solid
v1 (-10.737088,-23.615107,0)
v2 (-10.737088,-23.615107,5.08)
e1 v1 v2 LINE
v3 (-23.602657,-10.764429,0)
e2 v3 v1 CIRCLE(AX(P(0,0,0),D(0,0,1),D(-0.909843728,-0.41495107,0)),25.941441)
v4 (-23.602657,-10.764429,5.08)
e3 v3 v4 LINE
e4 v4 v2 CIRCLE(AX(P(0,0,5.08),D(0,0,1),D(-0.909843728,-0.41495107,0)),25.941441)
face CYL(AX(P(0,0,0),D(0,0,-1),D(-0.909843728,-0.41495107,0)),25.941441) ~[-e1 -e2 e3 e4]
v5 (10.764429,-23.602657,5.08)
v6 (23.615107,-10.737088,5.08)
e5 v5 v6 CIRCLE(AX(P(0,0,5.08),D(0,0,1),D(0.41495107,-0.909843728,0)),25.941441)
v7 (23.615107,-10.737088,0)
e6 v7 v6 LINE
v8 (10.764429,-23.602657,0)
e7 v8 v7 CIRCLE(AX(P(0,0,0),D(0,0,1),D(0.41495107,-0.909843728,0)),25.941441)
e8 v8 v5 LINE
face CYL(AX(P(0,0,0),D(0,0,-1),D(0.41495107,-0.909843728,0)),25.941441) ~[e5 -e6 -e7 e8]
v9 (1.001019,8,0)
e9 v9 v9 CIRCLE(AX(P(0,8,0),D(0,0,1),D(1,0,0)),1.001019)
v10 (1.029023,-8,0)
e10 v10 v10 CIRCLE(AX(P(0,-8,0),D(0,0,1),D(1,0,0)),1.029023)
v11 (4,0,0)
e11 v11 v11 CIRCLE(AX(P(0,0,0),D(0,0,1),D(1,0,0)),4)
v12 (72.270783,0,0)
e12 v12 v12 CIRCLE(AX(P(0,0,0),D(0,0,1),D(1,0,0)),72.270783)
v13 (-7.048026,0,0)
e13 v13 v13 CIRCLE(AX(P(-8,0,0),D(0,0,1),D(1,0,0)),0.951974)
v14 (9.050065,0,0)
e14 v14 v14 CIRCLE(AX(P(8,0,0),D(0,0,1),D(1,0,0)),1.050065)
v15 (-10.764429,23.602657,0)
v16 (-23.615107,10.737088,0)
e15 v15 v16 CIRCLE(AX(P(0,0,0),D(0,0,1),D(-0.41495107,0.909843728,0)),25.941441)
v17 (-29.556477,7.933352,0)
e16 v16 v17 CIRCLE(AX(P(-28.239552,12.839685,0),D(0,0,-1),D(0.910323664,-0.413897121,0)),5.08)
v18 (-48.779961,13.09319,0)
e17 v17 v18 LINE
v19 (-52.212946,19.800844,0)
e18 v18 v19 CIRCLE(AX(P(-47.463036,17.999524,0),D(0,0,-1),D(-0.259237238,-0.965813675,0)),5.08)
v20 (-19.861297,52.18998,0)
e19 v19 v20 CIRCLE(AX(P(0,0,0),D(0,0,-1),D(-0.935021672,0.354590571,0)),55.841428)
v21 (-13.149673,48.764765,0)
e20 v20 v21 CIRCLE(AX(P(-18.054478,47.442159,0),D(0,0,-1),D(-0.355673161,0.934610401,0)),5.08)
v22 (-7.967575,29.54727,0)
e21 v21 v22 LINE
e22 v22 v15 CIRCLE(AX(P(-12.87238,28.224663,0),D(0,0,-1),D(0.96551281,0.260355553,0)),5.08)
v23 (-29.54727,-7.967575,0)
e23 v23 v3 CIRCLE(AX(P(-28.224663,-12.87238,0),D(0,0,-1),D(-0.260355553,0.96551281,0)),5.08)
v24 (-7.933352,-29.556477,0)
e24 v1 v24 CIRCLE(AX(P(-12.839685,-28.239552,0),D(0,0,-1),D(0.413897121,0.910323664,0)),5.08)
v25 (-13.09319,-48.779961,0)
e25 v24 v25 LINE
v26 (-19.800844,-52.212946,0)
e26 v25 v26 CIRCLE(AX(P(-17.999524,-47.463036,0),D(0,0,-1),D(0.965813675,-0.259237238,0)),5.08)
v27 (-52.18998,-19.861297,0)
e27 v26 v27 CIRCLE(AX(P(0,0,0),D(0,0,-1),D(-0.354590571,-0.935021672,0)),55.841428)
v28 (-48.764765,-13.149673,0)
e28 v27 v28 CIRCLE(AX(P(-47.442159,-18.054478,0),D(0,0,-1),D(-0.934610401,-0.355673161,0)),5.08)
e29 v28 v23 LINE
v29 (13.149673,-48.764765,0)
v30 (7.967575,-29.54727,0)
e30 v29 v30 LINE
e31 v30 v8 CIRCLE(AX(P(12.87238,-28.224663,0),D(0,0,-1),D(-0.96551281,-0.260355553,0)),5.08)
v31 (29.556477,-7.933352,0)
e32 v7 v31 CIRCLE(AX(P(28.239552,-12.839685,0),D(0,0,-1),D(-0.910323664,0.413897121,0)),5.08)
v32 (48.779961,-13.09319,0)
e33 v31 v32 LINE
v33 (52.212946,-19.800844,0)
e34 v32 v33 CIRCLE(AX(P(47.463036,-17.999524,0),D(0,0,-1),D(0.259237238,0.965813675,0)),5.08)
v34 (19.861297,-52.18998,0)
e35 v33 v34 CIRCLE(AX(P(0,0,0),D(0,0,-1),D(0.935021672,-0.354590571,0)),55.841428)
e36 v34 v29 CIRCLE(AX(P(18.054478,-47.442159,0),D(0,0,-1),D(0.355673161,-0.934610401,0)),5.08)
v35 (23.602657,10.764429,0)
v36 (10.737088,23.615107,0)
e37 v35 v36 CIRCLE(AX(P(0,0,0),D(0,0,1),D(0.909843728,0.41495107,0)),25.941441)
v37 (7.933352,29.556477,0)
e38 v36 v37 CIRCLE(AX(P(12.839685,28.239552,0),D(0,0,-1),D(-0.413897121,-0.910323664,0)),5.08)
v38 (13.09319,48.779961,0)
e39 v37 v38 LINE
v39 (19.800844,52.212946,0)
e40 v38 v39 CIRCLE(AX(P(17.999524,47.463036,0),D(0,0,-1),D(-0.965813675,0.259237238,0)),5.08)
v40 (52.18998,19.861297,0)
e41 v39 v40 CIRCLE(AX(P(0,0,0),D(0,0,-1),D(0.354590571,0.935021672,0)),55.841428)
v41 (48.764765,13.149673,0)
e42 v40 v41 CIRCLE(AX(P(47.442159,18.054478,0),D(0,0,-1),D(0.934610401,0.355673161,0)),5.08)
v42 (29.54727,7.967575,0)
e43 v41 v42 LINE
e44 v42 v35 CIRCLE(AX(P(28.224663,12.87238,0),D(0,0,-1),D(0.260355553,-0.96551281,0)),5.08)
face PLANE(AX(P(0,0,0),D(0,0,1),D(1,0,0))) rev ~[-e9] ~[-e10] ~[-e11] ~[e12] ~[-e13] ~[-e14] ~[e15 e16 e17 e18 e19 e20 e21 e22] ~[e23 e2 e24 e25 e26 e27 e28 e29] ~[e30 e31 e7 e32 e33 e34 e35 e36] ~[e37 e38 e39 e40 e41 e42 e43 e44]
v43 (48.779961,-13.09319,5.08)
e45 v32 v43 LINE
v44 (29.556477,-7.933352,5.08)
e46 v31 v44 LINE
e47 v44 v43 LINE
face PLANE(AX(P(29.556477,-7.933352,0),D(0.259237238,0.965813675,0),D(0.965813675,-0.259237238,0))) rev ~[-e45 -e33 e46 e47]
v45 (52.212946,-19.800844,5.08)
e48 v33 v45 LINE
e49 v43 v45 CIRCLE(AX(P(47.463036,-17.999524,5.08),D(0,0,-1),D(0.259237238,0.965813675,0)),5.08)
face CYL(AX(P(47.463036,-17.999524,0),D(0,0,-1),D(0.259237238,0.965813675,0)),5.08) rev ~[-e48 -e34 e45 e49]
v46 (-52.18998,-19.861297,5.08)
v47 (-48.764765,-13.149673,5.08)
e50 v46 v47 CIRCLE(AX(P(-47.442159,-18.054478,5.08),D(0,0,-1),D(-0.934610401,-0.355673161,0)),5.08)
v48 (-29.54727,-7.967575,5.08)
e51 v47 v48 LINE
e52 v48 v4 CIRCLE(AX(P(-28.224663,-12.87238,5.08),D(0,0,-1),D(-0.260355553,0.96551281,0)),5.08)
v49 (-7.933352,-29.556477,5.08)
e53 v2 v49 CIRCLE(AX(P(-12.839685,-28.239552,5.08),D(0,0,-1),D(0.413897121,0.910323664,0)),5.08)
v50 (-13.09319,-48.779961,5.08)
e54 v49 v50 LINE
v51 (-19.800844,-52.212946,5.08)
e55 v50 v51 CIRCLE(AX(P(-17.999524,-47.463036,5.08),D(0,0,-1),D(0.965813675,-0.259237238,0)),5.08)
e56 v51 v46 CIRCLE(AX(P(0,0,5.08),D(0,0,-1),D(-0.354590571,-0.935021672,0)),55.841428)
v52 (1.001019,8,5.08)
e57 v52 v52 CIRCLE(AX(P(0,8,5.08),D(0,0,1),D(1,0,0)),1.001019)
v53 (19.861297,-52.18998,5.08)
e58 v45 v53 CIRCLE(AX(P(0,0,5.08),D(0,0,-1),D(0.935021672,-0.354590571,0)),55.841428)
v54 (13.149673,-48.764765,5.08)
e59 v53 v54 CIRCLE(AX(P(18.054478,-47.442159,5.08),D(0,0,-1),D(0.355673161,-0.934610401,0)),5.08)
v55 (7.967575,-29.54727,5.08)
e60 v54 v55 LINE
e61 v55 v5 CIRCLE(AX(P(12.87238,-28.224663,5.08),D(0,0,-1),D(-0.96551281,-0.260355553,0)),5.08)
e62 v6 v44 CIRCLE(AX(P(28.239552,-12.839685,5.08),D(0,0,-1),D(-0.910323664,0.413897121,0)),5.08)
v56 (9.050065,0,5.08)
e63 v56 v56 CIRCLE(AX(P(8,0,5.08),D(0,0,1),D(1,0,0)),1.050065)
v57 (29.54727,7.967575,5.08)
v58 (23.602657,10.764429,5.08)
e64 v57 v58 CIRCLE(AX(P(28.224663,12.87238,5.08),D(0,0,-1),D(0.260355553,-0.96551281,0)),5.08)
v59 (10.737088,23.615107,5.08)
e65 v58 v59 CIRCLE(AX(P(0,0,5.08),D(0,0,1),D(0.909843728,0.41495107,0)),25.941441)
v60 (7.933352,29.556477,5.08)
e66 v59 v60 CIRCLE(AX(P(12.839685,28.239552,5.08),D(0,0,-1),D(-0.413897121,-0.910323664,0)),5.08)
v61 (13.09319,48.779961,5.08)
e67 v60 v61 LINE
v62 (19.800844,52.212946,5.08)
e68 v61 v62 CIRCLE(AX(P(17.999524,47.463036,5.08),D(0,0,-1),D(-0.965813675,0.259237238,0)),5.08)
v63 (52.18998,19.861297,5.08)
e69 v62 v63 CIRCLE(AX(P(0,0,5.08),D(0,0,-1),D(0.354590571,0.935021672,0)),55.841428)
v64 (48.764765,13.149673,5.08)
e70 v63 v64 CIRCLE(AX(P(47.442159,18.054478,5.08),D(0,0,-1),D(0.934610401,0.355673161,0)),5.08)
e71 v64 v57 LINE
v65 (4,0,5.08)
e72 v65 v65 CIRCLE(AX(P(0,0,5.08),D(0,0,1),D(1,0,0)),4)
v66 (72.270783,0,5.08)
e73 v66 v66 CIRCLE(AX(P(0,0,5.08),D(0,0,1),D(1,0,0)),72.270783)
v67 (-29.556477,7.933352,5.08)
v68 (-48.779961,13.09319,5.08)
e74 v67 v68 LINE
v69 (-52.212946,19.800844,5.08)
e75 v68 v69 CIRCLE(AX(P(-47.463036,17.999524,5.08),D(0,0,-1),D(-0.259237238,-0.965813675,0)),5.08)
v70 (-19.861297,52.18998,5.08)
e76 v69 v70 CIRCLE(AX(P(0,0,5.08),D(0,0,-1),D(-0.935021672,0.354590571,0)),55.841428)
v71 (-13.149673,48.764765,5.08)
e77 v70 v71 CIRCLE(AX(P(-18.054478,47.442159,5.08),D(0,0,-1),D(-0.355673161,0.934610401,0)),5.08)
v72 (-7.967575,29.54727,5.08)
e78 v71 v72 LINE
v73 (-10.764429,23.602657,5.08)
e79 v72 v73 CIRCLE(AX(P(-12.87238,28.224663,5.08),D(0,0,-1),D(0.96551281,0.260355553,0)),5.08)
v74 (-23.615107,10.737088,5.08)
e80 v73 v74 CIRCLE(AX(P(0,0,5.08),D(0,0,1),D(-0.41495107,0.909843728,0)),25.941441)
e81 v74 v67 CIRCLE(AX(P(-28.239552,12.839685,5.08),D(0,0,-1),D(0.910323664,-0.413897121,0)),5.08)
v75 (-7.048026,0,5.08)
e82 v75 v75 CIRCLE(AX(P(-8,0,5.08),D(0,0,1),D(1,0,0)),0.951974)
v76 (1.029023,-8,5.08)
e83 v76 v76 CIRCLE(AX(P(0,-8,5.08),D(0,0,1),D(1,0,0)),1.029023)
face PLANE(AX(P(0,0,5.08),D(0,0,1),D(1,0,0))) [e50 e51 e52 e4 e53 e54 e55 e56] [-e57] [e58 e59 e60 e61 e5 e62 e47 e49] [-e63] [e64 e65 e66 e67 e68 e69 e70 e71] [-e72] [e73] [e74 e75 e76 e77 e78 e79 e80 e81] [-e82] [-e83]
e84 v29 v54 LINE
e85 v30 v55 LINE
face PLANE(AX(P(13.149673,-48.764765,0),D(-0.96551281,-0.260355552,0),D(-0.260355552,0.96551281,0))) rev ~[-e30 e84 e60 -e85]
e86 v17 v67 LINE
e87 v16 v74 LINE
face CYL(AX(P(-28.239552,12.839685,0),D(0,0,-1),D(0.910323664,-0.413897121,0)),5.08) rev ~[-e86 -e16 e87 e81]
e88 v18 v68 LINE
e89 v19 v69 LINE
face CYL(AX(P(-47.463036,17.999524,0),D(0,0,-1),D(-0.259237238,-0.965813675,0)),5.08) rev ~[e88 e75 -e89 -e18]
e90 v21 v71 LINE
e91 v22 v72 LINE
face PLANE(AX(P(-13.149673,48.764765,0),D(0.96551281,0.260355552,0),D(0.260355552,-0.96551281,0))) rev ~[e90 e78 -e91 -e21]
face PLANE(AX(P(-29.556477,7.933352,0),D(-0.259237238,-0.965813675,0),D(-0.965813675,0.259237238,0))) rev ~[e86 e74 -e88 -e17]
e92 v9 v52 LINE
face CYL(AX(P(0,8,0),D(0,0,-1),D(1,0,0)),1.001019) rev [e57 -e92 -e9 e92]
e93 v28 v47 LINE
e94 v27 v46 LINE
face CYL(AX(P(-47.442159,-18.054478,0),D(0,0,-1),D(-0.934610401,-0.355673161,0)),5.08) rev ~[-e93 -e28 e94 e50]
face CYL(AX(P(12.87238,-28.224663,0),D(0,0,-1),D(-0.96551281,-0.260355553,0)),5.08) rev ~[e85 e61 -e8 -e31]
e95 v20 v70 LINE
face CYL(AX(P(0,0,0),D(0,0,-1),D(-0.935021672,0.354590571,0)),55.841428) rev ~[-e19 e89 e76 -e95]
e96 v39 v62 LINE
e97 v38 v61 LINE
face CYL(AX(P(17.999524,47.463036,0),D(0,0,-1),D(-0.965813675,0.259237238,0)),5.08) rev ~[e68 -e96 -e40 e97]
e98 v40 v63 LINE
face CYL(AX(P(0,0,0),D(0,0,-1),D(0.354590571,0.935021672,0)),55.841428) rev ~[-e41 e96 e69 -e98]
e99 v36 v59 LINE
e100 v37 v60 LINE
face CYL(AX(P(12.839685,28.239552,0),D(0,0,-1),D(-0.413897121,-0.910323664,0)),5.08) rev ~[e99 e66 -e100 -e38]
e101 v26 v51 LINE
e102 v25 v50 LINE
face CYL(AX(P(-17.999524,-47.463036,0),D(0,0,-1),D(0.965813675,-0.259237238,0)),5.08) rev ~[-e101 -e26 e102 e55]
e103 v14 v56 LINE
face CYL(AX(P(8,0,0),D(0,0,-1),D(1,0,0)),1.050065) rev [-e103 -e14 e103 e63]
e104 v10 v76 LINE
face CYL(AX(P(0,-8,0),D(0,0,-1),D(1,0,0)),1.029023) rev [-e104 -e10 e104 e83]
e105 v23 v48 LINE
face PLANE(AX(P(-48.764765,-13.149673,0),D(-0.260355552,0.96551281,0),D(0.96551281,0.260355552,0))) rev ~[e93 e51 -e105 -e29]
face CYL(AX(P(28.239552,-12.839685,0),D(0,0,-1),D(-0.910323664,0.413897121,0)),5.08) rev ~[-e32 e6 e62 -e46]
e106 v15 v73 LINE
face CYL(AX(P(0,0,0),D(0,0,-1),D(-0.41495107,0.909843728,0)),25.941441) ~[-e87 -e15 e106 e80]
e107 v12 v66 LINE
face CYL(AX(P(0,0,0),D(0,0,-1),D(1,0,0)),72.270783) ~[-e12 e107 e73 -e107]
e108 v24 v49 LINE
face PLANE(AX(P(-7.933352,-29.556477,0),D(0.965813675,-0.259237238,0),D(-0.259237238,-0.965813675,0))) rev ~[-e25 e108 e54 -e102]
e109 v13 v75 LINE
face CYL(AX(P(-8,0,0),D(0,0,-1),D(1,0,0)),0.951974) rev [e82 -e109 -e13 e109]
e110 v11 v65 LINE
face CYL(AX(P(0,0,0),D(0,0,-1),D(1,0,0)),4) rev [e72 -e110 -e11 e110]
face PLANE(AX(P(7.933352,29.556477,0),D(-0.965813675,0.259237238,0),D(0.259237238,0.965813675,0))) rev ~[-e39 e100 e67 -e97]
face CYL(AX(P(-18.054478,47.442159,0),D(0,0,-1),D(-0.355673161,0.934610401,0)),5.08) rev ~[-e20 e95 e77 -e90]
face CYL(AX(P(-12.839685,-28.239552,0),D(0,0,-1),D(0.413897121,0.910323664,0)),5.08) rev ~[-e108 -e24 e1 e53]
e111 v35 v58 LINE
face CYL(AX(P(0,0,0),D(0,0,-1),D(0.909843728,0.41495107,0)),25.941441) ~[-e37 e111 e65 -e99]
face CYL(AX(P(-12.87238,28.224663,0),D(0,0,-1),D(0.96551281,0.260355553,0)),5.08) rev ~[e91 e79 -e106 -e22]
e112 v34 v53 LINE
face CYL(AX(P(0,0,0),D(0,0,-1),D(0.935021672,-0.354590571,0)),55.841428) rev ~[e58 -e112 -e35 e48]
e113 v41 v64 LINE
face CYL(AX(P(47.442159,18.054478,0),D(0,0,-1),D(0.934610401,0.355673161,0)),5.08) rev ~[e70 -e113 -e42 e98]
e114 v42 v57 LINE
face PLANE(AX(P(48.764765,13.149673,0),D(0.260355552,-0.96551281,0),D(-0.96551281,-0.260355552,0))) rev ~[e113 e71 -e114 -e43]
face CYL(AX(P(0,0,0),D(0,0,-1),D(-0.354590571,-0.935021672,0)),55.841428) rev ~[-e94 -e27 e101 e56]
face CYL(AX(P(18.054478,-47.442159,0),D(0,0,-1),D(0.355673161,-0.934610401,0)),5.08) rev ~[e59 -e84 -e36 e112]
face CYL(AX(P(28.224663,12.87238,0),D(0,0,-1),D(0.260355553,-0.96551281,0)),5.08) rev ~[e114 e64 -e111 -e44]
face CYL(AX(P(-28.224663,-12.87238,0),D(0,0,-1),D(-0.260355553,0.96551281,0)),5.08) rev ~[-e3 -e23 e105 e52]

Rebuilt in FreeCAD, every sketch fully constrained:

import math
import FreeCAD as App
import Part
import Sketcher
Q = App.Units.Quantity

doc = App.newDocument("Part")
body = doc.addObject("PartDesign::Body", "Body")

# Sketch on XY plane
sketch1 = body.newObject("Sketcher::SketchObject", "Sketch")
sketch1.AttachmentSupport = (doc.getObject("XY_Plane"), [""])
sketch1.MapMode = "FlatFace"
sketch1.addGeometry([
    Part.Circle(App.Vector(0, 0, 0), App.Vector(0, 0, 1), 72.3),  # 0
    Part.ArcOfCircle(Part.Circle(App.Vector(-12.8, -28.2, 0), App.Vector(0, 0, 1), 5.1), math.radians(-15), math.radians(66)),  # 1
    Part.LineSegment(App.Vector(-7.9, -29.6, 0), App.Vector(-13.1, -48.8, 0)),  # 2
    Part.ArcOfCircle(Part.Circle(App.Vector(-18, -47.5, 0), App.Vector(0, 0, 1), 5.1), math.radians(-111), math.radians(-15)),  # 3
    Part.ArcOfCircle(Part.Circle(App.Vector(0, 0, 0), App.Vector(0, 0, 1), 55.8), math.radians(-159), math.radians(-111)),  # 4
    Part.ArcOfCircle(Part.Circle(App.Vector(-47.4, -18.1, 0), App.Vector(0, 0, 1), 5.1), math.radians(105), math.radians(201)),  # 5
    Part.LineSegment(App.Vector(-48.8, -13.1, 0), App.Vector(-29.5, -8, 0)),  # 6
    Part.ArcOfCircle(Part.Circle(App.Vector(-28.2, -12.9, 0), App.Vector(0, 0, 1), 5.1), math.radians(25), math.radians(105)),  # 7
    Part.ArcOfCircle(Part.Circle(App.Vector(0, 0, 0), App.Vector(0, 0, 1), 25.9), math.radians(-155), math.radians(-114)),  # 8
    Part.ArcOfCircle(Part.Circle(App.Vector(28.2, -12.8, 0), App.Vector(0, 0, 1), 5.1), math.radians(75), math.radians(156)),  # 9
    Part.LineSegment(App.Vector(29.6, -7.9, 0), App.Vector(48.8, -13.1, 0)),  # 10
    Part.ArcOfCircle(Part.Circle(App.Vector(47.5, -18, 0), App.Vector(0, 0, 1), 5.1), math.radians(-21), math.radians(75)),  # 11
    Part.ArcOfCircle(Part.Circle(App.Vector(0, 0, 0), App.Vector(0, 0, 1), 55.8), math.radians(-69), math.radians(-21)),  # 12
    Part.ArcOfCircle(Part.Circle(App.Vector(18.1, -47.4, 0), App.Vector(0, 0, 1), 5.1), math.radians(-165), math.radians(-69)),  # 13
    Part.LineSegment(App.Vector(13.1, -48.8, 0), App.Vector(8, -29.5, 0)),  # 14
    Part.ArcOfCircle(Part.Circle(App.Vector(12.9, -28.2, 0), App.Vector(0, 0, 1), 5.1), math.radians(115), math.radians(195)),  # 15
    Part.ArcOfCircle(Part.Circle(App.Vector(0, 0, 0), App.Vector(0, 0, 1), 25.9), math.radians(-65), math.radians(-24)),  # 16
    Part.Circle(App.Vector(0, -8, 0), App.Vector(0, 0, 1), 1),  # 17
    Part.Circle(App.Vector(-8, 0, 0), App.Vector(0, 0, 1), 1),  # 18
    Part.ArcOfCircle(Part.Circle(App.Vector(-28.2, 12.8, 0), App.Vector(0, 0, 1), 5.1), math.radians(-105), math.radians(-24)),  # 19
    Part.LineSegment(App.Vector(-29.6, 7.9, 0), App.Vector(-48.8, 13.1, 0)),  # 20
    Part.ArcOfCircle(Part.Circle(App.Vector(-47.5, 18, 0), App.Vector(0, 0, 1), 5.1), math.radians(159), math.radians(255)),  # 21
    Part.ArcOfCircle(Part.Circle(App.Vector(0, 0, 0), App.Vector(0, 0, 1), 55.8), math.radians(111), math.radians(159)),  # 22
    Part.ArcOfCircle(Part.Circle(App.Vector(-18.1, 47.4, 0), App.Vector(0, 0, 1), 5.1), math.radians(15), math.radians(111)),  # 23
    Part.LineSegment(App.Vector(-13.1, 48.8, 0), App.Vector(-8, 29.5, 0)),  # 24
    Part.ArcOfCircle(Part.Circle(App.Vector(-12.9, 28.2, 0), App.Vector(0, 0, 1), 5.1), math.radians(-65), math.radians(15)),  # 25
    Part.ArcOfCircle(Part.Circle(App.Vector(0, 0, 0), App.Vector(0, 0, 1), 25.9), math.radians(115), math.radians(156)),  # 26
    Part.Circle(App.Vector(0, 0, 0), App.Vector(0, 0, 1), 4),  # 27
    Part.Circle(App.Vector(8, 0, 0), App.Vector(0, 0, 1), 1.1),  # 28
    Part.Circle(App.Vector(0, 8, 0), App.Vector(0, 0, 1), 1),  # 29
    Part.ArcOfCircle(Part.Circle(App.Vector(12.8, 28.2, 0), App.Vector(0, 0, 1), 5.1), math.radians(165), math.radians(246)),  # 30
    Part.LineSegment(App.Vector(7.9, 29.6, 0), App.Vector(13.1, 48.8, 0)),  # 31
    Part.ArcOfCircle(Part.Circle(App.Vector(18, 47.5, 0), App.Vector(0, 0, 1), 5.1), math.radians(69), math.radians(165)),  # 32
    Part.ArcOfCircle(Part.Circle(App.Vector(0, 0, 0), App.Vector(0, 0, 1), 55.8), math.radians(21), math.radians(69)),  # 33
    Part.ArcOfCircle(Part.Circle(App.Vector(47.4, 18.1, 0), App.Vector(0, 0, 1), 5.1), math.radians(-75), math.radians(21)),  # 34
    Part.LineSegment(App.Vector(48.8, 13.1, 0), App.Vector(29.5, 8, 0)),  # 35
    Part.ArcOfCircle(Part.Circle(App.Vector(28.2, 12.9, 0), App.Vector(0, 0, 1), 5.1), math.radians(-155), math.radians(-75)),  # 36
    Part.ArcOfCircle(Part.Circle(App.Vector(0, 0, 0), App.Vector(0, 0, 1), 25.9), math.radians(25), math.radians(66)),  # 37
], False)
sketch1.addConstraint([
    Sketcher.Constraint("Tangent", 1, 1, 2, 1),
    Sketcher.Constraint("Tangent", 2, 2, 3, 2),
    Sketcher.Constraint("Tangent", 3, 1, 4, 2),
    Sketcher.Constraint("Tangent", 4, 1, 5, 2),
    Sketcher.Constraint("Tangent", 5, 1, 6, 1),
    Sketcher.Constraint("Tangent", 6, 2, 7, 2),
    Sketcher.Constraint("Tangent", 7, 1, 8, 1),
    Sketcher.Constraint("Tangent", 8, 2, 1, 2),
    Sketcher.Constraint("Tangent", 9, 1, 10, 1),
    Sketcher.Constraint("Tangent", 10, 2, 11, 2),
    Sketcher.Constraint("Tangent", 11, 1, 12, 2),
    Sketcher.Constraint("Tangent", 12, 1, 13, 2),
    Sketcher.Constraint("Tangent", 13, 1, 14, 1),
    Sketcher.Constraint("Tangent", 14, 2, 15, 2),
    Sketcher.Constraint("Tangent", 15, 1, 16, 1),
    Sketcher.Constraint("Tangent", 16, 2, 9, 2),
    Sketcher.Constraint("Tangent", 19, 1, 20, 1),
    Sketcher.Constraint("Tangent", 20, 2, 21, 2),
    Sketcher.Constraint("Tangent", 21, 1, 22, 2),
    Sketcher.Constraint("Tangent", 22, 1, 23, 2),
    Sketcher.Constraint("Tangent", 23, 1, 24, 1),
    Sketcher.Constraint("Tangent", 24, 2, 25, 2),
    Sketcher.Constraint("Tangent", 25, 1, 26, 1),
    Sketcher.Constraint("Tangent", 26, 2, 19, 2),
    Sketcher.Constraint("Tangent", 30, 1, 31, 1),
    Sketcher.Constraint("Tangent", 31, 2, 32, 2),
    Sketcher.Constraint("Tangent", 32, 1, 33, 2),
    Sketcher.Constraint("Tangent", 33, 1, 34, 2),
    Sketcher.Constraint("Tangent", 34, 1, 35, 1),
    Sketcher.Constraint("Tangent", 35, 2, 36, 2),
    Sketcher.Constraint("Tangent", 36, 1, 37, 1),
    Sketcher.Constraint("Tangent", 37, 2, 30, 2),
    Sketcher.Constraint("Coincident", 0, 3, -1, 1),
    Sketcher.Constraint("Coincident", 4, 3, -1, 1),
    Sketcher.Constraint("Coincident", 8, 3, -1, 1),
    Sketcher.Constraint("Coincident", 12, 3, -1, 1),
    Sketcher.Constraint("Coincident", 16, 3, -1, 1),
    Sketcher.Constraint("Coincident", 22, 3, -1, 1),
    Sketcher.Constraint("Coincident", 26, 3, -1, 1),
    Sketcher.Constraint("Coincident", 27, 3, -1, 1),
    Sketcher.Constraint("Coincident", 33, 3, -1, 1),
    Sketcher.Constraint("Coincident", 37, 3, -1, 1),
    Sketcher.Constraint("Equal", 1, 3),
    Sketcher.Constraint("Equal", 3, 5),
    Sketcher.Constraint("Equal", 5, 7),
    Sketcher.Constraint("Equal", 7, 9),
    Sketcher.Constraint("Equal", 9, 11),
    Sketcher.Constraint("Equal", 4, 12),
    Sketcher.Constraint("Equal", 11, 13),
    Sketcher.Constraint("Equal", 13, 15),
    Sketcher.Constraint("Equal", 8, 16),
    Sketcher.Constraint("Equal", 15, 19),
    Sketcher.Constraint("Equal", 19, 21),
    Sketcher.Constraint("Equal", 12, 22),
    Sketcher.Constraint("Equal", 21, 23),
    Sketcher.Constraint("Equal", 23, 25),
    Sketcher.Constraint("Equal", 16, 26),
    Sketcher.Constraint("Equal", 25, 30),
    Sketcher.Constraint("Equal", 30, 32),
    Sketcher.Constraint("Equal", 22, 33),
    Sketcher.Constraint("Equal", 32, 34),
    Sketcher.Constraint("Equal", 34, 36),
    Sketcher.Constraint("Equal", 26, 37),
    Sketcher.Constraint("Symmetric", 18, 3, 28, 3, -1, 1),
    Sketcher.Constraint("Symmetric", 17, 3, 29, 3, -1, 1),
    Sketcher.Constraint("Symmetric", 9, 1, 19, 1, -1, 1),
    Sketcher.Constraint("Symmetric", 13, 1, 23, 1, -1, 1),
    Sketcher.Constraint("Symmetric", 1, 1, 30, 1, -1, 1),
    Sketcher.Constraint("Symmetric", 5, 1, 34, 1, -1, 1),
    Sketcher.Constraint("PointOnObject", 17, 3, -2),
    Sketcher.Constraint("PointOnObject", 18, 3, -1),
    Sketcher.Constraint("Perpendicular", 2, 10),
    Sketcher.Constraint("Perpendicular", 6, 14),
    Sketcher.Constraint("Equal", 2, 6),
    Sketcher.Constraint("Equal", 6, 10),
    Sketcher.Constraint("Equal", 10, 14),
    Sketcher.Constraint("Radius", 1, Q("0.2 in")),
    Sketcher.Constraint("Diameter", 27, 8.0),
    Sketcher.Constraint("Diameter", 28, 2.10013),
    Sketcher.Constraint("Diameter", 29, 2.002039),
    Sketcher.Constraint("Radius", 4, 55.841428),
    Sketcher.Constraint("Radius", 8, 25.941441),
    Sketcher.Constraint("Diameter", 0, 144.541567),
    Sketcher.Constraint("Diameter", 17, 2.058046),
    Sketcher.Constraint("Diameter", 18, 1.903947),
    Sketcher.Constraint("DistanceY", 17, 3, -1, 1, 8.0),
    Sketcher.Constraint("DistanceX", 18, 3, -1, 1, 8.0),
    Sketcher.Constraint("DistanceY", 1, 3, -1, 1, 28.239552),
    Sketcher.Constraint("DistanceX", 5, 3, -1, 1, 47.442159),
    Sketcher.Constraint("DistanceY", 7, 3, -1, 1, 12.87238),
])
pad1 = body.newObject("PartDesign::Pad", "Pad")
pad1.Profile = sketch1
pad1.Length = Q("0.2 in")

doc.recompute()
